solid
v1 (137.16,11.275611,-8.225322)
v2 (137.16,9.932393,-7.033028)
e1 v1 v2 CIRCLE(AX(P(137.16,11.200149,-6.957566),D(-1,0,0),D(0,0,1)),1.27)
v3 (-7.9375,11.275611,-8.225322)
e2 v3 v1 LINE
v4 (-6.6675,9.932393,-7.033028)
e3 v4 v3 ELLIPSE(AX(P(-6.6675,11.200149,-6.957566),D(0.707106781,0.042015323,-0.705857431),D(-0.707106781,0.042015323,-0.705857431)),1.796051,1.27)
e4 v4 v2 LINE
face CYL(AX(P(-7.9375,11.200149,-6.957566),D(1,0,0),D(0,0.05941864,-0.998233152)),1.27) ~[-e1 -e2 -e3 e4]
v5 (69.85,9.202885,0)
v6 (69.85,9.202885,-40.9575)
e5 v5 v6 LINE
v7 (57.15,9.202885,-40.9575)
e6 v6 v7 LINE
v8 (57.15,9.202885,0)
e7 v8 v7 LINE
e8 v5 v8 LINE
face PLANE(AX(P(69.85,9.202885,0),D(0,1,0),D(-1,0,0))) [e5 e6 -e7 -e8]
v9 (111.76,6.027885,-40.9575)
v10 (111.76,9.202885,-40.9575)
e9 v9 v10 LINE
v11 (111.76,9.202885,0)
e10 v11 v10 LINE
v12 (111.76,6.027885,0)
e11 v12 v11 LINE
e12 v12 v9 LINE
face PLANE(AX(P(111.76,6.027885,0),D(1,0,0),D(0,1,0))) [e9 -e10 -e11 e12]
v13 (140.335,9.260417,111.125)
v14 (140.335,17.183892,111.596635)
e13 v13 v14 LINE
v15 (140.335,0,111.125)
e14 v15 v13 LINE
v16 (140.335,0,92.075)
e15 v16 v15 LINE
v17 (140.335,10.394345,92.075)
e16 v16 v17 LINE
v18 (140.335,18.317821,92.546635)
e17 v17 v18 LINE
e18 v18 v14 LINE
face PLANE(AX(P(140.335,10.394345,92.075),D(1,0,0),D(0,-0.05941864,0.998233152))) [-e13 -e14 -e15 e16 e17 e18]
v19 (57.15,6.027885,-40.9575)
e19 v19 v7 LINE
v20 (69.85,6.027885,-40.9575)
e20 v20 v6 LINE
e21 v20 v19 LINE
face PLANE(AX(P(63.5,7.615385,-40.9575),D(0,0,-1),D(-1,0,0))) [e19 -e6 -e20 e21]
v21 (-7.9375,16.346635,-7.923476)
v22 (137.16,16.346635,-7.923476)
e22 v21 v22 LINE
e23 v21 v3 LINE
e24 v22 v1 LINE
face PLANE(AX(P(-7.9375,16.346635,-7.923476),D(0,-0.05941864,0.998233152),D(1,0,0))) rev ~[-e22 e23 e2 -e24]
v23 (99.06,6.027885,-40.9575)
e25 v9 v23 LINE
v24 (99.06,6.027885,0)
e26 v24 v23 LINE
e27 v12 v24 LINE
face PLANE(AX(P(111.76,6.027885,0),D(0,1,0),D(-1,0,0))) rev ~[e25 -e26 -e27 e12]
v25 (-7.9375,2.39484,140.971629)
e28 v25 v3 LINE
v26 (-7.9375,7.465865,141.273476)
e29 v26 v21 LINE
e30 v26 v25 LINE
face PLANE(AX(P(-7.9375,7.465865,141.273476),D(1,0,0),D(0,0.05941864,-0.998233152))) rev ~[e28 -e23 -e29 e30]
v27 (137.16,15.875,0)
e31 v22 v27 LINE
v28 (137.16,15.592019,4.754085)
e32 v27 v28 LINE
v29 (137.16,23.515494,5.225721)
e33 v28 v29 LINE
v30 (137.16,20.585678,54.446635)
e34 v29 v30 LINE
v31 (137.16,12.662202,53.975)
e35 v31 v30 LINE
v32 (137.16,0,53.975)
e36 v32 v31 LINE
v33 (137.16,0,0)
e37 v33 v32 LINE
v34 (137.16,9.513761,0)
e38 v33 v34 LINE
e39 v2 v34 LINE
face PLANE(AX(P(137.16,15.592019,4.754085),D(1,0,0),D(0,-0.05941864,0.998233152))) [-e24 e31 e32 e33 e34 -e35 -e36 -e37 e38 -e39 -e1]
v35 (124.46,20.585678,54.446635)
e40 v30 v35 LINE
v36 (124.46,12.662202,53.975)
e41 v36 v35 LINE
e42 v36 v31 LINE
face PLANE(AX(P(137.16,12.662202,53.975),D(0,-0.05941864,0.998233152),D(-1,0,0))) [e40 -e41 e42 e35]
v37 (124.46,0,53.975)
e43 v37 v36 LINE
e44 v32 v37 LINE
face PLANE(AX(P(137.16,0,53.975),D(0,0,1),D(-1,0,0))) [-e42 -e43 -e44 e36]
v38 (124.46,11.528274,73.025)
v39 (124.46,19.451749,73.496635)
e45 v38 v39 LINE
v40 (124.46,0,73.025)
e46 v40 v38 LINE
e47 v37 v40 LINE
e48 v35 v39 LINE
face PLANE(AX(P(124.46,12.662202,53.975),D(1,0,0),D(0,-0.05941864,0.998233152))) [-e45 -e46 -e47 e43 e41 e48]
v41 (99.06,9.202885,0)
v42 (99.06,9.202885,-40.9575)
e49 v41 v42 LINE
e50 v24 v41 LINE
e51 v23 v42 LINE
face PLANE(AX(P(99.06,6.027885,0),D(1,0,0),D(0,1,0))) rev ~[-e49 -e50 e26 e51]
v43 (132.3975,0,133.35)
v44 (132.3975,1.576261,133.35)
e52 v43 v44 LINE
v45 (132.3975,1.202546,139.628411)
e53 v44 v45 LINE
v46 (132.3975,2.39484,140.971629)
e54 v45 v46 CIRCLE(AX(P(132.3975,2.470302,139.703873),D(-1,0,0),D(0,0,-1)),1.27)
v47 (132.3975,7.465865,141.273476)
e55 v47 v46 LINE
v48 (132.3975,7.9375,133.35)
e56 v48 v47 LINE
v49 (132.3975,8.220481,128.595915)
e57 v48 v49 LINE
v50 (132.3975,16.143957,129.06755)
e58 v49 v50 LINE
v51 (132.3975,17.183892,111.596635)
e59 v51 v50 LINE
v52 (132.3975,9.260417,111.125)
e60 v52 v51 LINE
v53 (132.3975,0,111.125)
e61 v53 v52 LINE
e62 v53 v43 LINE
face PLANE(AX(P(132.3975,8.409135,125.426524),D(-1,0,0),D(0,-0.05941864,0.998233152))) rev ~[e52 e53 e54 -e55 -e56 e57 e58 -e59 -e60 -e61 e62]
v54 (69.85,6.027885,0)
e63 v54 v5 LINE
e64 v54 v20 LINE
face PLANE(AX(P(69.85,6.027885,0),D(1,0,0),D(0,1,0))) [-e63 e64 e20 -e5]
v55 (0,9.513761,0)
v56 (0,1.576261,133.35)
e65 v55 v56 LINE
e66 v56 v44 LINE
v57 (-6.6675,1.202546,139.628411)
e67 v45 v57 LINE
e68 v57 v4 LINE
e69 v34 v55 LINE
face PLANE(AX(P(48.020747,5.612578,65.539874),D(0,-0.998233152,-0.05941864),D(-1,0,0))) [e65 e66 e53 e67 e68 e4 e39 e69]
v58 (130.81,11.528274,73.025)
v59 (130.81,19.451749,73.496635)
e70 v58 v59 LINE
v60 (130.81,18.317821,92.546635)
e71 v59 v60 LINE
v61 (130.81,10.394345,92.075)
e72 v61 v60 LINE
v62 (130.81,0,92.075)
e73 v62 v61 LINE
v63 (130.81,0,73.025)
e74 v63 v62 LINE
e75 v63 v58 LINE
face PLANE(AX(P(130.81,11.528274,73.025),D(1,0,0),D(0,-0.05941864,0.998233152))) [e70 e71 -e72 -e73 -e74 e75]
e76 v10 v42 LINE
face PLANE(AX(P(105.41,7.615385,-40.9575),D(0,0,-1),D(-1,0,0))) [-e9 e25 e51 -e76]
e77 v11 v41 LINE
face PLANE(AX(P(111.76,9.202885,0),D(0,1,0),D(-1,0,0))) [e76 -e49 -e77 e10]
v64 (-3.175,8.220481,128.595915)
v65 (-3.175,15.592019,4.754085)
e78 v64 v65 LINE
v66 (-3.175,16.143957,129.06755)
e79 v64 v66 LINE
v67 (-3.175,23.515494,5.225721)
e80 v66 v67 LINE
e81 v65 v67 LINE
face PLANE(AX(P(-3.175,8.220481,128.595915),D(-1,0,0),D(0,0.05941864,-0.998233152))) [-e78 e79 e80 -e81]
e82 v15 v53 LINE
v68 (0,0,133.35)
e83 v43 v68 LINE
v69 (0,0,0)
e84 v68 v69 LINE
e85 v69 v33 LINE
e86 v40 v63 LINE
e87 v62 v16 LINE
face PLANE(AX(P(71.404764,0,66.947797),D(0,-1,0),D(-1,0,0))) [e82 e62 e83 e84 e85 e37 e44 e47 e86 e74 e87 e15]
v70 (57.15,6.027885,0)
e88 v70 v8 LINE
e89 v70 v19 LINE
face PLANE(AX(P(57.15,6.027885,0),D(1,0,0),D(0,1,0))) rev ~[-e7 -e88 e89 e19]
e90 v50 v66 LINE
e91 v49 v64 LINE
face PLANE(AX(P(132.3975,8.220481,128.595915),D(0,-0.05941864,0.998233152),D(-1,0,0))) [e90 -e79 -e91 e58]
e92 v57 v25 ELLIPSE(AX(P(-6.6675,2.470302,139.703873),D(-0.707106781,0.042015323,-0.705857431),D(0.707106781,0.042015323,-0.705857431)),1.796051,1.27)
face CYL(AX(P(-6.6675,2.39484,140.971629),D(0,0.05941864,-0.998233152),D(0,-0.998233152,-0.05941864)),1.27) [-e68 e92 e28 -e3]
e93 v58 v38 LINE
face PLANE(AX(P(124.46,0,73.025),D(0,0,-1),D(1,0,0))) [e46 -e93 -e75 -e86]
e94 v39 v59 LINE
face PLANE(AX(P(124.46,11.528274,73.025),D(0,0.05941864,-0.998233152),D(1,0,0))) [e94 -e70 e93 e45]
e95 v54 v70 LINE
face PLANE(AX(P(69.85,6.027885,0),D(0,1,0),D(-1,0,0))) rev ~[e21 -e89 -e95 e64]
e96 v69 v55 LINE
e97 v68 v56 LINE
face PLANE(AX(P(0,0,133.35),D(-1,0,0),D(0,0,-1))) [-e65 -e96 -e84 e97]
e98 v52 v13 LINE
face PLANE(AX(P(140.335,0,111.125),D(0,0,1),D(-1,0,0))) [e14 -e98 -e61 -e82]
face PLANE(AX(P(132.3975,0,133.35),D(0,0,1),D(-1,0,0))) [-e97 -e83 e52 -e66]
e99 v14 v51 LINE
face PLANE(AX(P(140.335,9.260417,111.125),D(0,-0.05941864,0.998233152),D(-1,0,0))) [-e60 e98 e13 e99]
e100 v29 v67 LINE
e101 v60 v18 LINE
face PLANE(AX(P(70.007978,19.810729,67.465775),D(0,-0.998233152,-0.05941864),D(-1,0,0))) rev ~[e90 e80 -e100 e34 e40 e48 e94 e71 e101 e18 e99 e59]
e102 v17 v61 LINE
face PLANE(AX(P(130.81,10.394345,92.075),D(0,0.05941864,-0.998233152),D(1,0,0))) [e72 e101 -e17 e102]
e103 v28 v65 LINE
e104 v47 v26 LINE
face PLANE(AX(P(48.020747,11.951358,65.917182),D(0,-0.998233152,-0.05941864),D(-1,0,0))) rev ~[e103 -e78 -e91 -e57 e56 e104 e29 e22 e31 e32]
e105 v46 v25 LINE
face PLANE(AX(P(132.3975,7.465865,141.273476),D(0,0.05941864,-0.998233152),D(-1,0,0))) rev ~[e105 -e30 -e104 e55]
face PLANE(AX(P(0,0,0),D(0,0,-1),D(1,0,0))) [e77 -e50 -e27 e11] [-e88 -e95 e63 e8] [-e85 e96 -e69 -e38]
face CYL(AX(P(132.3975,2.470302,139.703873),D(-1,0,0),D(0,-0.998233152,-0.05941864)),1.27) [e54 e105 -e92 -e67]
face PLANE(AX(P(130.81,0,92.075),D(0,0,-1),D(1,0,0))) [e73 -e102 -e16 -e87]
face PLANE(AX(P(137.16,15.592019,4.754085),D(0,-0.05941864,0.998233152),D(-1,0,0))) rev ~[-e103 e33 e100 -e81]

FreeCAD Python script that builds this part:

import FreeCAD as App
import Part
import Sketcher
Q = App.Units.Quantity


def edges_at(feature, points):
    """Names of the edges that pass closest to the given points."""
    edges = feature.Shape.Edges
    near = lambda p: min(range(len(edges)), key=lambda i: edges[i].distToShape(Part.Vertex(*p))[0])
    return sorted({f"Edge{near(p) + 1}" for p in points})

doc = App.newDocument("Part")
body = doc.addObject("PartDesign::Body", "Body")

# Sketch on XZ plane
sketch1 = doc.addObject("Sketcher::SketchObject", "Sketch")
body.addObject(sketch1)
sketch1.AttachmentSupport = (doc.XZ_Plane, [""])
sketch1.MapMode = "FlatFace"
sketch1.addGeometry(Part.LineSegment(App.Vector(137, 0, 0), App.Vector(0, 0, 0)), False)
sketch1.addGeometry(Part.LineSegment(App.Vector(0, 0, 0), App.Vector(0, 133, 0)), False)
sketch1.addGeometry(Part.LineSegment(App.Vector(0, 133, 0), App.Vector(132, 133, 0)), False)
sketch1.addGeometry(Part.LineSegment(App.Vector(132, 133, 0), App.Vector(132, 111, 0)), False)
sketch1.addGeometry(Part.LineSegment(App.Vector(132, 111, 0), App.Vector(140, 111, 0)), False)
sketch1.addGeometry(Part.LineSegment(App.Vector(140, 111, 0), App.Vector(140, 92, 0)), False)
sketch1.addGeometry(Part.LineSegment(App.Vector(140, 92, 0), App.Vector(131, 92, 0)), False)
sketch1.addGeometry(Part.LineSegment(App.Vector(131, 92, 0), App.Vector(131, 73, 0)), False)
sketch1.addGeometry(Part.LineSegment(App.Vector(131, 73, 0), App.Vector(124, 73, 0)), False)
sketch1.addGeometry(Part.LineSegment(App.Vector(124, 73, 0), App.Vector(124, 54, 0)), False)
sketch1.addGeometry(Part.LineSegment(App.Vector(124, 54, 0), App.Vector(137, 54, 0)), False)
sketch1.addGeometry(Part.LineSegment(App.Vector(137, 54, 0), App.Vector(137, 0, 0)), False)
sketch1.addConstraint(Sketcher.Constraint("Coincident", 0, 2, 1, 1))
sketch1.addConstraint(Sketcher.Constraint("Coincident", 1, 2, 2, 1))
sketch1.addConstraint(Sketcher.Constraint("Coincident", 2, 2, 3, 1))
sketch1.addConstraint(Sketcher.Constraint("Coincident", 3, 2, 4, 1))
sketch1.addConstraint(Sketcher.Constraint("Coincident", 4, 2, 5, 1))
sketch1.addConstraint(Sketcher.Constraint("Coincident", 5, 2, 6, 1))
sketch1.addConstraint(Sketcher.Constraint("Coincident", 6, 2, 7, 1))
sketch1.addConstraint(Sketcher.Constraint("Coincident", 7, 2, 8, 1))
sketch1.addConstraint(Sketcher.Constraint("Coincident", 8, 2, 9, 1))
sketch1.addConstraint(Sketcher.Constraint("Coincident", 9, 2, 10, 1))
sketch1.addConstraint(Sketcher.Constraint("Coincident", 10, 2, 11, 1))
sketch1.addConstraint(Sketcher.Constraint("Coincident", 11, 2, 0, 1))
sketch1.addConstraint(Sketcher.Constraint("Horizontal", 0))
sketch1.addConstraint(Sketcher.Constraint("Vertical", 1))
sketch1.addConstraint(Sketcher.Constraint("Horizontal", 2))
sketch1.addConstraint(Sketcher.Constraint("Vertical", 3))
sketch1.addConstraint(Sketcher.Constraint("Horizontal", 4))
sketch1.addConstraint(Sketcher.Constraint("Vertical", 5))
sketch1.addConstraint(Sketcher.Constraint("Horizontal", 6))
sketch1.addConstraint(Sketcher.Constraint("Vertical", 7))
sketch1.addConstraint(Sketcher.Constraint("Horizontal", 8))
sketch1.addConstraint(Sketcher.Constraint("Vertical", 9))
sketch1.addConstraint(Sketcher.Constraint("Horizontal", 10))
sketch1.addConstraint(Sketcher.Constraint("Vertical", 11))
sketch1.addConstraint(Sketcher.Constraint("Coincident", 0, 2, -1, 1))
sketch1.addConstraint(Sketcher.Constraint("Equal", 5, 7))
sketch1.addConstraint(Sketcher.Constraint("Equal", 7, 9))
sketch1.addConstraint(Sketcher.Constraint("DistanceX", 0, 2, 0, 1, Q("5.4 in")))
sketch1.addConstraint(Sketcher.Constraint("DistanceX", 10, 1, 10, 2, Q("0.5 in")))
sketch1.addConstraint(Sketcher.Constraint("DistanceX", 8, 2, 8, 1, Q("0.25 in")))
sketch1.addConstraint(Sketcher.Constraint("DistanceY", 1, 1, 1, 2, Q("5.25 in")))
sketch1.addConstraint(Sketcher.Constraint("DistanceY", 5, 2, 5, 1, Q("0.75 in")))
sketch1.addConstraint(Sketcher.Constraint("DistanceX", 4, 1, 4, 2, Q("0.3125 in")))
sketch1.addConstraint(Sketcher.Constraint("DistanceX", 6, 2, 6, 1, Q("0.375 in")))
sketch1.addConstraint(Sketcher.Constraint("DistanceY", 3, 2, 3, 1, Q("0.875 in")))
pad1 = doc.addObject("PartDesign::Pad", "Pad")
body.addObject(pad1)
pad1.Profile = sketch1
pad1.Length = Q("0.625 in")
pad1.Reversed = True

# Sketch on YZ plane
sketch2 = doc.addObject("Sketcher::SketchObject", "Sketch001")
body.addObject(sketch2)
sketch2.AttachmentSupport = (doc.YZ_Plane, [""])
sketch2.MapMode = "FlatFace"
sketch2.addGeometry(Part.LineSegment(App.Vector(8, 133, 0), App.Vector(16, 133, 0)), False)
sketch2.addGeometry(Part.LineSegment(App.Vector(16, 133, 0), App.Vector(16, 0, 0)), False)
sketch2.addGeometry(Part.LineSegment(App.Vector(16, 0, 0), App.Vector(8, 133, 0)), False)
sketch2.addConstraint(Sketcher.Constraint("Coincident", 0, 2, 1, 1))
sketch2.addConstraint(Sketcher.Constraint("Coincident", 1, 2, 2, 1))
sketch2.addConstraint(Sketcher.Constraint("Coincident", 2, 2, 0, 1))
sketch2.addConstraint(Sketcher.Constraint("Horizontal", 0))
sketch2.addConstraint(Sketcher.Constraint("Vertical", 1))
sketch2.addConstraint(Sketcher.Constraint("PointOnObject", 1, 2, -1))
sketch2.addConstraint(Sketcher.Constraint("DistanceY", 1, 2, 1, 1, Q("5.25 in")))
sketch2.addConstraint(Sketcher.Constraint("DistanceX", 0, 1, 0, 2, Q("0.3125 in")))
sketch2.addConstraint(Sketcher.Constraint("DistanceX", -1, 1, 0, 2, Q("0.625 in")))
pocket1 = doc.addObject("PartDesign::Pocket", "Pocket")
body.addObject(pocket1)
pocket1.Profile = sketch2
pocket1.Type = "ThroughAll"
pocket1.Reversed = True

# Sketch on an angled plane
sketch3 = doc.addObject("Sketcher::SketchObject", "Sketch002")
body.addObject(sketch3)
sketch3.Placement = App.Placement(App.Vector(0, 15.818952, 0.941604), App.Rotation(App.Vector(1, 0, 0), App.Vector(0, 0.05941864, -0.998233152), App.Vector(0, 0.998233152, 0.05941864), "ZXY"))
sketch3.addGeometry(Part.LineSegment(App.Vector(137, 9, 0), App.Vector(-8, 9, 0)), False)
sketch3.addGeometry(Part.LineSegment(App.Vector(-8, 9, 0), App.Vector(-8, -141, 0)), False)
sketch3.addGeometry(Part.LineSegment(App.Vector(-8, -141, 0), App.Vector(132, -141, 0)), False)
sketch3.addGeometry(Part.LineSegment(App.Vector(132, -141, 0), App.Vector(132, -125, 0)), False)
sketch3.addGeometry(Part.LineSegment(App.Vector(132, -125, 0), App.Vector(8, -125, 0)), False)
sketch3.addGeometry(Part.LineSegment(App.Vector(8, -125, 0), App.Vector(8, -7, 0)), False)
sketch3.addGeometry(Part.LineSegment(App.Vector(8, -7, 0), App.Vector(137, -7, 0)), False)
sketch3.addGeometry(Part.LineSegment(App.Vector(137, -7, 0), App.Vector(137, 9, 0)), False)
sketch3.addConstraint(Sketcher.Constraint("Coincident", 0, 2, 1, 1))
sketch3.addConstraint(Sketcher.Constraint("Coincident", 1, 2, 2, 1))
sketch3.addConstraint(Sketcher.Constraint("Coincident", 2, 2, 3, 1))
sketch3.addConstraint(Sketcher.Constraint("Coincident", 3, 2, 4, 1))
sketch3.addConstraint(Sketcher.Constraint("Coincident", 4, 2, 5, 1))
sketch3.addConstraint(Sketcher.Constraint("Coincident", 5, 2, 6, 1))
sketch3.addConstraint(Sketcher.Constraint("Coincident", 6, 2, 7, 1))
sketch3.addConstraint(Sketcher.Constraint("Coincident", 7, 2, 0, 1))
sketch3.addConstraint(Sketcher.Constraint("Horizontal", 0))
sketch3.addConstraint(Sketcher.Constraint("Vertical", 1))
sketch3.addConstraint(Sketcher.Constraint("Horizontal", 2))
sketch3.addConstraint(Sketcher.Constraint("Vertical", 3))
sketch3.addConstraint(Sketcher.Constraint("Horizontal", 4))
sketch3.addConstraint(Sketcher.Constraint("Vertical", 5))
sketch3.addConstraint(Sketcher.Constraint("Horizontal", 6))
sketch3.addConstraint(Sketcher.Constraint("Vertical", 7))
sketch3.addConstraint(Sketcher.Constraint("Equal", 3, 7))
sketch3.addConstraint(Sketcher.Constraint("DistanceX", 4, 2, 4, 1, Q("4.9 in")))
sketch3.addConstraint(Sketcher.Constraint("DistanceX", -1, 1, 6, 2, Q("5.4 in")))
sketch3.addConstraint(Sketcher.Constraint("DistanceX", 2, 1, 2, 2, Q("5.525 in")))
sketch3.addConstraint(Sketcher.Constraint("DistanceY", 3, 1, 3, 2, Q("0.625 in")))
sketch3.addConstraint(Sketcher.Constraint("DistanceX", 0, 2, 0, 1, Q("5.7125 in")))
sketch3.addConstraint(Sketcher.Constraint("DistanceY", 1, 2, 1, 1, 149.461026))
sketch3.addConstraint(Sketcher.Constraint("DistanceY", -1, 1, 0, 2, 8.880771))
pad2 = doc.addObject("PartDesign::Pad", "Pad001")
body.addObject(pad2)
pad2.Profile = sketch3
pad2.Length = Q("0.25 in")
pad2.Reversed = True
doc.recompute()

fillet = doc.addObject("PartDesign::Fillet", "Fillet")
body.addObject(fillet)
fillet.Base = (pad2, edges_at(pad2, [(-7.938, 5.567, 66.298), (64.611, 10.008, -8.301), (62.23, 1.127, 140.896)]))
fillet.Radius = Q("0.05 in")

# Sketch on an angled plane
sketch4 = doc.addObject("Sketcher::SketchObject", "Sketch003")
body.addObject(sketch4)
sketch4.Placement = App.Placement(App.Vector(0, 15.818952, 0.941604), App.Rotation(App.Vector(1, 0, 0), App.Vector(0, 0.05941864, -0.998233152), App.Vector(0, 0.998233152, 0.05941864), "ZXY"))
sketch4.addGeometry(Part.LineSegment(App.Vector(137, -4, 0), App.Vector(-3, -4, 0)), False)
sketch4.addGeometry(Part.LineSegment(App.Vector(-3, -4, 0), App.Vector(-3, -128, 0)), False)
sketch4.addGeometry(Part.LineSegment(App.Vector(-3, -128, 0), App.Vector(132, -128, 0)), False)
sketch4.addGeometry(Part.LineSegment(App.Vector(132, -128, 0), App.Vector(132, -110, 0)), False)
sketch4.addGeometry(Part.LineSegment(App.Vector(132, -110, 0), App.Vector(140, -110, 0)), False)
sketch4.addGeometry(Part.LineSegment(App.Vector(140, -110, 0), App.Vector(140, -91, 0)), False)
sketch4.addGeometry(Part.LineSegment(App.Vector(140, -91, 0), App.Vector(131, -91, 0)), False)
sketch4.addGeometry(Part.LineSegment(App.Vector(131, -91, 0), App.Vector(131, -72, 0)), False)
sketch4.addGeometry(Part.LineSegment(App.Vector(131, -72, 0), App.Vector(124, -72, 0)), False)
sketch4.addGeometry(Part.LineSegment(App.Vector(124, -72, 0), App.Vector(124, -53, 0)), False)
sketch4.addGeometry(Part.LineSegment(App.Vector(124, -53, 0), App.Vector(137, -53, 0)), False)
sketch4.addGeometry(Part.LineSegment(App.Vector(137, -53, 0), App.Vector(137, -4, 0)), False)
sketch4.addConstraint(Sketcher.Constraint("Coincident", 0, 2, 1, 1))
sketch4.addConstraint(Sketcher.Constraint("Coincident", 1, 2, 2, 1))
sketch4.addConstraint(Sketcher.Constraint("Coincident", 2, 2, 3, 1))
sketch4.addConstraint(Sketcher.Constraint("Coincident", 3, 2, 4, 1))
sketch4.addConstraint(Sketcher.Constraint("Coincident", 4, 2, 5, 1))
sketch4.addConstraint(Sketcher.Constraint("Coincident", 5, 2, 6, 1))
sketch4.addConstraint(Sketcher.Constraint("Coincident", 6, 2, 7, 1))
sketch4.addConstraint(Sketcher.Constraint("Coincident", 7, 2, 8, 1))
sketch4.addConstraint(Sketcher.Constraint("Coincident", 8, 2, 9, 1))
sketch4.addConstraint(Sketcher.Constraint("Coincident", 9, 2, 10, 1))
sketch4.addConstraint(Sketcher.Constraint("Coincident", 10, 2, 11, 1))
sketch4.addConstraint(Sketcher.Constraint("Coincident", 11, 2, 0, 1))
sketch4.addConstraint(Sketcher.Constraint("Horizontal", 0))
sketch4.addConstraint(Sketcher.Constraint("Vertical", 1))
sketch4.addConstraint(Sketcher.Constraint("Horizontal", 2))
sketch4.addConstraint(Sketcher.Constraint("Vertical", 3))
sketch4.addConstraint(Sketcher.Constraint("Horizontal", 4))
sketch4.addConstraint(Sketcher.Constraint("Vertical", 5))
sketch4.addConstraint(Sketcher.Constraint("Horizontal", 6))
sketch4.addConstraint(Sketcher.Constraint("Vertical", 7))
sketch4.addConstraint(Sketcher.Constraint("Horizontal", 8))
sketch4.addConstraint(Sketcher.Constraint("Vertical", 9))
sketch4.addConstraint(Sketcher.Constraint("Horizontal", 10))
sketch4.addConstraint(Sketcher.Constraint("Vertical", 11))
sketch4.addConstraint(Sketcher.Constraint("Equal", 5, 7))
sketch4.addConstraint(Sketcher.Constraint("Equal", 7, 9))
sketch4.addConstraint(Sketcher.Constraint("DistanceX", 10, 1, 10, 2, Q("0.5 in")))
sketch4.addConstraint(Sketcher.Constraint("DistanceX", 8, 2, 8, 1, Q("0.25 in")))
sketch4.addConstraint(Sketcher.Constraint("DistanceX", -1, 1, 8, 2, Q("4.9 in")))
sketch4.addConstraint(Sketcher.Constraint("DistanceX", 0, 2, 0, 1, Q("5.525 in")))
sketch4.addConstraint(Sketcher.Constraint("DistanceX", 4, 1, 4, 2, Q("0.3125 in")))
sketch4.addConstraint(Sketcher.Constraint("DistanceX", 6, 2, 6, 1, Q("0.375 in")))
sketch4.addConstraint(Sketcher.Constraint("DistanceY", 5, 1, 5, 2, 19.083718))
sketch4.addConstraint(Sketcher.Constraint("DistanceY", 5, 2, -1, 1, 91.2947))
sketch4.addConstraint(Sketcher.Constraint("DistanceY", 1, 2, 1, 1, 124.061026))
sketch4.addConstraint(Sketcher.Constraint("DistanceY", 3, 1, 3, 2, 17.501838))
pad3 = doc.addObject("PartDesign::Pad", "Pad002")
body.addObject(pad3)
pad3.Profile = sketch4
pad3.Length = Q("0.3125 in")

# Sketch on XY plane
sketch5 = doc.addObject("Sketcher::SketchObject", "Sketch004")
body.addObject(sketch5)
sketch5.AttachmentSupport = (doc.XY_Plane, [""])
sketch5.MapMode = "FlatFace"
sketch5.addGeometry(Part.LineSegment(App.Vector(69.8, 9.2, 0), App.Vector(69.8, 6, 0)), False)
sketch5.addGeometry(Part.LineSegment(App.Vector(69.8, 6, 0), App.Vector(57.1, 6, 0)), False)
sketch5.addGeometry(Part.LineSegment(App.Vector(57.1, 6, 0), App.Vector(57.1, 9.2, 0)), False)
sketch5.addGeometry(Part.LineSegment(App.Vector(57.1, 9.2, 0), App.Vector(69.8, 9.2, 0)), False)
sketch5.addGeometry(Part.LineSegment(App.Vector(111.8, 9.2, 0), App.Vector(111.8, 6, 0)), False)
sketch5.addGeometry(Part.LineSegment(App.Vector(111.8, 6, 0), App.Vector(99.1, 6, 0)), False)
sketch5.addGeometry(Part.LineSegment(App.Vector(99.1, 6, 0), App.Vector(99.1, 9.2, 0)), False)
sketch5.addGeometry(Part.LineSegment(App.Vector(99.1, 9.2, 0), App.Vector(111.8, 9.2, 0)), False)
sketch5.addConstraint(Sketcher.Constraint("Coincident", 0, 2, 1, 1))
sketch5.addConstraint(Sketcher.Constraint("Coincident", 1, 2, 2, 1))
sketch5.addConstraint(Sketcher.Constraint("Coincident", 2, 2, 3, 1))
sketch5.addConstraint(Sketcher.Constraint("Coincident", 3, 2, 0, 1))
sketch5.addConstraint(Sketcher.Constraint("Coincident", 4, 2, 5, 1))
sketch5.addConstraint(Sketcher.Constraint("Coincident", 5, 2, 6, 1))
sketch5.addConstraint(Sketcher.Constraint("Coincident", 6, 2, 7, 1))
sketch5.addConstraint(Sketcher.Constraint("Coincident", 7, 2, 4, 1))
sketch5.addConstraint(Sketcher.Constraint("Vertical", 0))
sketch5.addConstraint(Sketcher.Constraint("Horizontal", 1))
sketch5.addConstraint(Sketcher.Constraint("Vertical", 2))
sketch5.addConstraint(Sketcher.Constraint("Horizontal", 3))
sketch5.addConstraint(Sketcher.Constraint("Vertical", 4))
sketch5.addConstraint(Sketcher.Constraint("Horizontal", 5))
sketch5.addConstraint(Sketcher.Constraint("Vertical", 6))
sketch5.addConstraint(Sketcher.Constraint("Horizontal", 7))
sketch5.addConstraint(Sketcher.Constraint("Horizontal", 1, 2, 4, 2))
sketch5.addConstraint(Sketcher.Constraint("Horizontal", 3, 2, 6, 2))
sketch5.addConstraint(Sketcher.Constraint("Equal", 3, 5))
sketch5.addConstraint(Sketcher.Constraint("DistanceX", 1, 2, 1, 1, Q("0.5 in")))
sketch5.addConstraint(Sketcher.Constraint("DistanceX", -1, 1, 4, 2, Q("4.4 in")))
sketch5.addConstraint(Sketcher.Constraint("DistanceY", 0, 2, 0, 1, Q("0.125 in")))
sketch5.addConstraint(Sketcher.Constraint("DistanceX", -1, 1, 0, 2, Q("2.75 in")))
sketch5.addConstraint(Sketcher.Constraint("DistanceY", -1, 1, 0, 2, 6.027885))
pad4 = doc.addObject("PartDesign::Pad", "Pad003")
body.addObject(pad4)
pad4.Profile = sketch5
pad4.Length = Q("1.6125 in")
pad4.Reversed = True

doc.recompute()
